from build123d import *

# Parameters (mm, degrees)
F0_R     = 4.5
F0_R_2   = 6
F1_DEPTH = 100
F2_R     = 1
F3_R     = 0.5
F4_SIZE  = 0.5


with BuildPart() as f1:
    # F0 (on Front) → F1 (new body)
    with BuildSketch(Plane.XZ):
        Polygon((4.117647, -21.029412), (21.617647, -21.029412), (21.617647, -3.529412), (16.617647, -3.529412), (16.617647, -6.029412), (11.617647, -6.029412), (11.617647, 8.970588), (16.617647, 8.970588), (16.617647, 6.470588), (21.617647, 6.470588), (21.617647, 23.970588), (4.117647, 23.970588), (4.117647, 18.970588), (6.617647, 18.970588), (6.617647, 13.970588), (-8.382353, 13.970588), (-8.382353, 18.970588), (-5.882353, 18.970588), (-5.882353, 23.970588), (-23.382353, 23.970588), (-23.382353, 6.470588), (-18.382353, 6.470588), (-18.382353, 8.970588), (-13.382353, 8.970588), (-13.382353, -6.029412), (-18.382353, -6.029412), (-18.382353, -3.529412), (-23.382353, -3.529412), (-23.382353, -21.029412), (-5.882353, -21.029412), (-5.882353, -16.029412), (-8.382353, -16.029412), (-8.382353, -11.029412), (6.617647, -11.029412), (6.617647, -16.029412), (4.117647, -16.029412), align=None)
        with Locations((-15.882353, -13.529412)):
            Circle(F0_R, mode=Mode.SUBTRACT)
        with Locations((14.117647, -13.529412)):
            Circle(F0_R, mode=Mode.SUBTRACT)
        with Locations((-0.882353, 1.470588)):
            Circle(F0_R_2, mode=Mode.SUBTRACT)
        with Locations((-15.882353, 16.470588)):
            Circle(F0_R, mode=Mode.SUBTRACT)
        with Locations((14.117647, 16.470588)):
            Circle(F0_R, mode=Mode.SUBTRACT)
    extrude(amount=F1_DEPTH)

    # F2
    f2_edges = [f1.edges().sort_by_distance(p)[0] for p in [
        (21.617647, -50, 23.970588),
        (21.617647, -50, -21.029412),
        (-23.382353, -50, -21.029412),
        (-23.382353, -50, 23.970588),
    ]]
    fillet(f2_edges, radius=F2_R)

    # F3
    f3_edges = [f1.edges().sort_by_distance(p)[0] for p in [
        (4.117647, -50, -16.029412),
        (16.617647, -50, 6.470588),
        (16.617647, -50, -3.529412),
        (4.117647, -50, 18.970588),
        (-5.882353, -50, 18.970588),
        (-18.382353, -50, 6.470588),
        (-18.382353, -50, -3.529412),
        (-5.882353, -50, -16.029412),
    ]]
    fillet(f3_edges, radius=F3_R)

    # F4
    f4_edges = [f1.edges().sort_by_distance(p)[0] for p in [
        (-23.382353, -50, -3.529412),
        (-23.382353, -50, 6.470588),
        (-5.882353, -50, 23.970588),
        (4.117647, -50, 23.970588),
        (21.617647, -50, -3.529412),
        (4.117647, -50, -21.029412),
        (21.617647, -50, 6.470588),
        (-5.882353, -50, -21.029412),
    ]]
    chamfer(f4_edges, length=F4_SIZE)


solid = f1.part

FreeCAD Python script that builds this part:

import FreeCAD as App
import Part
import Sketcher
from FreeCAD import Vector


def edges_at(feature, points):
    """Names of the edges that pass closest to the given points."""
    edges = feature.Shape.Edges
    near = lambda p: min(range(len(edges)), key=lambda i: edges[i].distToShape(Part.Vertex(*p))[0])
    return sorted({f"Edge{near(p) + 1}" for p in points})

doc = App.newDocument("Part")
params = doc.addObject("Spreadsheet::Sheet", "Params")
for row, (alias, value) in enumerate([
    ("sketch1_diameter", "9 mm"),
    ("sketch1_diameter2", "12 mm"),
    ("sketch1_width", "5 mm"),
    ("sketch1_width2", "15 mm"),
    ("sketch1_width3", "17.5 mm"),
    ("pad1_length", "100 mm"),
    ("fillet_radius", "1 mm"),
    ("fillet2_radius", "0.5 mm"),
    ("chamfer_size", "0.5 mm"),
], start=1):
    params.set(f"A{row}", alias)
    params.set(f"B{row}", "=" + value)
    params.setAlias(f"B{row}", alias)

body = doc.addObject("PartDesign::Body", "Body")

# Sketch on XZ plane
sketch1 = body.newObject("Sketcher::SketchObject", "Sketch")
sketch1.AttachmentSupport = (doc.getObject("XZ_Plane"), [""])
sketch1.MapMode = "FlatFace"
sketch1.addGeometry([
    Part.LineSegment(Vector(4.117647, -21.029412, 0), Vector(21.617647, -21.029412, 0)),  # 0
    Part.LineSegment(Vector(21.617647, -21.029412, 0), Vector(21.617647, -3.529412, 0)),  # 1
    Part.LineSegment(Vector(21.617647, -3.529412, 0), Vector(16.617647, -3.529412, 0)),  # 2
    Part.LineSegment(Vector(16.617647, -3.529412, 0), Vector(16.617647, -6.029412, 0)),  # 3
    Part.LineSegment(Vector(16.617647, -6.029412, 0), Vector(11.617647, -6.029412, 0)),  # 4
    Part.LineSegment(Vector(11.617647, -6.029412, 0), Vector(11.617647, 8.970588, 0)),  # 5
    Part.LineSegment(Vector(11.617647, 8.970588, 0), Vector(16.617647, 8.970588, 0)),  # 6
    Part.LineSegment(Vector(16.617647, 8.970588, 0), Vector(16.617647, 6.470588, 0)),  # 7
    Part.LineSegment(Vector(16.617647, 6.470588, 0), Vector(21.617647, 6.470588, 0)),  # 8
    Part.LineSegment(Vector(21.617647, 6.470588, 0), Vector(21.617647, 23.970588, 0)),  # 9
    Part.LineSegment(Vector(21.617647, 23.970588, 0), Vector(4.117647, 23.970588, 0)),  # 10
    Part.LineSegment(Vector(4.117647, 23.970588, 0), Vector(4.117647, 18.970588, 0)),  # 11
    Part.LineSegment(Vector(4.117647, 18.970588, 0), Vector(6.617647, 18.970588, 0)),  # 12
    Part.LineSegment(Vector(6.617647, 18.970588, 0), Vector(6.617647, 13.970588, 0)),  # 13
    Part.LineSegment(Vector(6.617647, 13.970588, 0), Vector(-8.382353, 13.970588, 0)),  # 14
    Part.LineSegment(Vector(-8.382353, 13.970588, 0), Vector(-8.382353, 18.970588, 0)),  # 15
    Part.LineSegment(Vector(-8.382353, 18.970588, 0), Vector(-5.882353, 18.970588, 0)),  # 16
    Part.LineSegment(Vector(-5.882353, 18.970588, 0), Vector(-5.882353, 23.970588, 0)),  # 17
    Part.LineSegment(Vector(-5.882353, 23.970588, 0), Vector(-23.382353, 23.970588, 0)),  # 18
    Part.LineSegment(Vector(-23.382353, 23.970588, 0), Vector(-23.382353, 6.470588, 0)),  # 19
    Part.LineSegment(Vector(-23.382353, 6.470588, 0), Vector(-18.382353, 6.470588, 0)),  # 20
    Part.LineSegment(Vector(-18.382353, 6.470588, 0), Vector(-18.382353, 8.970588, 0)),  # 21
    Part.LineSegment(Vector(-18.382353, 8.970588, 0), Vector(-13.382353, 8.970588, 0)),  # 22
    Part.LineSegment(Vector(-13.382353, 8.970588, 0), Vector(-13.382353, -6.029412, 0)),  # 23
    Part.LineSegment(Vector(-13.382353, -6.029412, 0), Vector(-18.382353, -6.029412, 0)),  # 24
    Part.LineSegment(Vector(-18.382353, -6.029412, 0), Vector(-18.382353, -3.529412, 0)),  # 25
    Part.LineSegment(Vector(-18.382353, -3.529412, 0), Vector(-23.382353, -3.529412, 0)),  # 26
    Part.LineSegment(Vector(-23.382353, -3.529412, 0), Vector(-23.382353, -21.029412, 0)),  # 27
    Part.LineSegment(Vector(-23.382353, -21.029412, 0), Vector(-5.882353, -21.029412, 0)),  # 28
    Part.LineSegment(Vector(-5.882353, -21.029412, 0), Vector(-5.882353, -16.029412, 0)),  # 29
    Part.LineSegment(Vector(-5.882353, -16.029412, 0), Vector(-8.382353, -16.029412, 0)),  # 30
    Part.LineSegment(Vector(-8.382353, -16.029412, 0), Vector(-8.382353, -11.029412, 0)),  # 31
    Part.LineSegment(Vector(-8.382353, -11.029412, 0), Vector(6.617647, -11.029412, 0)),  # 32
    Part.LineSegment(Vector(6.617647, -11.029412, 0), Vector(6.617647, -16.029412, 0)),  # 33
    Part.LineSegment(Vector(6.617647, -16.029412, 0), Vector(4.117647, -16.029412, 0)),  # 34
    Part.LineSegment(Vector(4.117647, -16.029412, 0), Vector(4.117647, -21.029412, 0)),  # 35
    Part.Circle(Vector(-15.882353, -13.529412, 0), Vector(0, 0, 1), 4.5),  # 36
    Part.Circle(Vector(14.117647, -13.529412, 0), Vector(0, 0, 1), 4.5),  # 37
    Part.Circle(Vector(-15.882353, 16.470588, 0), Vector(0, 0, 1), 4.5),  # 38
    Part.Circle(Vector(-0.882353, 1.470588, 0), Vector(0, 0, 1), 6),  # 39
    Part.Circle(Vector(14.117647, 16.470588, 0), Vector(0, 0, 1), 4.5),  # 40
], False)
sketch1.addConstraint([
    Sketcher.Constraint("Coincident", 0, 2, 1, 1),
    Sketcher.Constraint("Coincident", 1, 2, 2, 1),
    Sketcher.Constraint("Coincident", 2, 2, 3, 1),
    Sketcher.Constraint("Coincident", 3, 2, 4, 1),
    Sketcher.Constraint("Coincident", 4, 2, 5, 1),
    Sketcher.Constraint("Coincident", 5, 2, 6, 1),
    Sketcher.Constraint("Coincident", 6, 2, 7, 1),
    Sketcher.Constraint("Coincident", 7, 2, 8, 1),
    Sketcher.Constraint("Coincident", 8, 2, 9, 1),
    Sketcher.Constraint("Coincident", 9, 2, 10, 1),
    Sketcher.Constraint("Coincident", 10, 2, 11, 1),
    Sketcher.Constraint("Coincident", 11, 2, 12, 1),
    Sketcher.Constraint("Coincident", 12, 2, 13, 1),
    Sketcher.Constraint("Coincident", 13, 2, 14, 1),
    Sketcher.Constraint("Coincident", 14, 2, 15, 1),
    Sketcher.Constraint("Coincident", 15, 2, 16, 1),
    Sketcher.Constraint("Coincident", 16, 2, 17, 1),
    Sketcher.Constraint("Coincident", 17, 2, 18, 1),
    Sketcher.Constraint("Coincident", 18, 2, 19, 1),
    Sketcher.Constraint("Coincident", 19, 2, 20, 1),
    Sketcher.Constraint("Coincident", 20, 2, 21, 1),
    Sketcher.Constraint("Coincident", 21, 2, 22, 1),
    Sketcher.Constraint("Coincident", 22, 2, 23, 1),
    Sketcher.Constraint("Coincident", 23, 2, 24, 1),
    Sketcher.Constraint("Coincident", 24, 2, 25, 1),
    Sketcher.Constraint("Coincident", 25, 2, 26, 1),
    Sketcher.Constraint("Coincident", 26, 2, 27, 1),
    Sketcher.Constraint("Coincident", 27, 2, 28, 1),
    Sketcher.Constraint("Coincident", 28, 2, 29, 1),
    Sketcher.Constraint("Coincident", 29, 2, 30, 1),
    Sketcher.Constraint("Coincident", 30, 2, 31, 1),
    Sketcher.Constraint("Coincident", 31, 2, 32, 1),
    Sketcher.Constraint("Coincident", 32, 2, 33, 1),
    Sketcher.Constraint("Coincident", 33, 2, 34, 1),
    Sketcher.Constraint("Coincident", 34, 2, 35, 1),
    Sketcher.Constraint("Coincident", 35, 2, 0, 1),
    Sketcher.Constraint("Horizontal", 0),
    Sketcher.Constraint("Vertical", 1),
    Sketcher.Constraint("Horizontal", 2),
    Sketcher.Constraint("Vertical", 3),
    Sketcher.Constraint("Horizontal", 4),
    Sketcher.Constraint("Vertical", 5),
    Sketcher.Constraint("Horizontal", 6),
    Sketcher.Constraint("Vertical", 7),
    Sketcher.Constraint("Horizontal", 8),
    Sketcher.Constraint("Vertical", 9),
    Sketcher.Constraint("Horizontal", 10),
    Sketcher.Constraint("Vertical", 11),
    Sketcher.Constraint("Horizontal", 12),
    Sketcher.Constraint("Vertical", 13),
    Sketcher.Constraint("Horizontal", 14),
    Sketcher.Constraint("Vertical", 15),
    Sketcher.Constraint("Horizontal", 16),
    Sketcher.Constraint("Vertical", 17),
    Sketcher.Constraint("Horizontal", 18),
    Sketcher.Constraint("Vertical", 19),
    Sketcher.Constraint("Horizontal", 20),
    Sketcher.Constraint("Vertical", 21),
    Sketcher.Constraint("Horizontal", 22),
    Sketcher.Constraint("Vertical", 23),
    Sketcher.Constraint("Horizontal", 24),
    Sketcher.Constraint("Vertical", 25),
    Sketcher.Constraint("Horizontal", 26),
    Sketcher.Constraint("Vertical", 27),
    Sketcher.Constraint("Horizontal", 28),
    Sketcher.Constraint("Vertical", 29),
    Sketcher.Constraint("Horizontal", 30),
    Sketcher.Constraint("Vertical", 31),
    Sketcher.Constraint("Horizontal", 32),
    Sketcher.Constraint("Vertical", 33),
    Sketcher.Constraint("Horizontal", 34),
    Sketcher.Constraint("Vertical", 35),
    Sketcher.Constraint("Equal", 36, 37),
    Sketcher.Constraint("Equal", 37, 38),
    Sketcher.Constraint("Equal", 38, 40),
    Sketcher.Constraint("Horizontal", 36, 3, 37, 3),
    Sketcher.Constraint("Horizontal", 38, 3, 40, 3),
    Sketcher.Constraint("Horizontal", 12, 2, 15, 2),
    Sketcher.Constraint("Horizontal", 10, 2, 17, 2),
    Sketcher.Constraint("Horizontal", 8, 2, 19, 2),
    Sketcher.Constraint("Horizontal", 6, 2, 21, 2),
    Sketcher.Constraint("Horizontal", 4, 2, 23, 2),
    Sketcher.Constraint("Horizontal", 2, 2, 25, 2),
    Sketcher.Constraint("Horizontal", 0, 2, 27, 2),
    Sketcher.Constraint("Horizontal", 30, 2, 33, 2),
    Sketcher.Constraint("Vertical", 36, 3, 38, 3),
    Sketcher.Constraint("Vertical", 37, 3, 40, 3),
    Sketcher.Constraint("Vertical", 3, 2, 6, 2),
    Sketcher.Constraint("Vertical", 1, 2, 8, 2),
    Sketcher.Constraint("Vertical", 21, 2, 24, 2),
    Sketcher.Constraint("Vertical", 19, 2, 26, 2),
    Sketcher.Constraint("Vertical", 17, 2, 28, 2),
    Sketcher.Constraint("Vertical", 15, 2, 30, 2),
    Sketcher.Constraint("Vertical", 13, 2, 32, 2),
    Sketcher.Constraint("Vertical", 11, 2, 34, 2),
    Sketcher.Constraint("Equal", 2, 4),
    Sketcher.Constraint("Equal", 12, 16),
    Sketcher.Constraint("Equal", 10, 18),
    Sketcher.Constraint("Equal", 8, 20),
    Sketcher.Constraint("Equal", 20, 22),
    Sketcher.Constraint("Equal", 28, 1),
    Sketcher.Constraint("Equal", 34, 3),
    Sketcher.Constraint("Equal", 32, 5),
    Sketcher.Constraint("Equal", 3, 7),
    Sketcher.Constraint("Equal", 1, 9),
    Sketcher.Constraint("Equal", 26, 11),
    Sketcher.Constraint("Equal", 11, 13),
    Sketcher.Constraint("Equal", 17, 29),
    Sketcher.Constraint("Equal", 29, 31),
    Sketcher.Constraint("Diameter", 36, 9.0),
    Sketcher.Constraint("Diameter", 39, 12.0),
    Sketcher.Constraint("DistanceX", 2, 2, 2, 1, 5.0),
    Sketcher.Constraint("DistanceX", 14, 2, 14, 1, 15.0),
    Sketcher.Constraint("DistanceX", 0, 1, 0, 2, 17.5),
    Sketcher.Constraint("DistanceX", 12, 1, 12, 2, 2.5),
    Sketcher.Constraint("DistanceX", 36, 3, 37, 3, 30.0),
    Sketcher.Constraint("DistanceY", 36, 3, 38, 3, 30.0),
    Sketcher.Constraint("DistanceX", 36, 3, 39, 3, 15.0),
    Sketcher.Constraint("DistanceY", 36, 3, 39, 3, 15.0),
    Sketcher.Constraint("DistanceY", 37, 3, 1, 2, 10.0),
    Sketcher.Constraint("DistanceX", 10, 2, 40, 3, 10.0),
    Sketcher.Constraint("DistanceY", 3, 2, -1, 1, 6.029412),
    Sketcher.Constraint("DistanceX", 36, 3, -1, 1, 15.882353),
])
sketch1.setExpression("Constraints[109]", "Params.sketch1_diameter")
sketch1.setExpression("Constraints[110]", "Params.sketch1_diameter2")
sketch1.setExpression("Constraints[111]", "Params.sketch1_width")
sketch1.setExpression("Constraints[112]", "Params.sketch1_width2")
sketch1.setExpression("Constraints[113]", "Params.sketch1_width3")
pad1 = body.newObject("PartDesign::Pad", "Pad")
pad1.Profile = sketch1
pad1.setExpression("Length", "Params.pad1_length")
doc.recompute()

fillet = body.newObject("PartDesign::Fillet", "Fillet")
fillet.Base = (pad1, edges_at(pad1, [
    (21.618, -50, 23.971),
    (21.618, -50, -21.029),
    (-23.382, -50, -21.029),
    (-23.382, -50, 23.971),
]))
fillet.setExpression("Radius", "Params.fillet_radius")
doc.recompute()

fillet2 = body.newObject("PartDesign::Fillet", "Fillet001")
fillet2.Base = (fillet, edges_at(fillet, [
    (4.118, -50, -16.029),
    (16.618, -50, 6.471),
    (16.618, -50, -3.529),
    (4.118, -50, 18.971),
    (-5.882, -50, 18.971),
    (-18.382, -50, 6.471),
    (-18.382, -50, -3.529),
    (-5.882, -50, -16.029),
]))
fillet2.setExpression("Radius", "Params.fillet2_radius")
doc.recompute()

chamfer = body.newObject("PartDesign::Chamfer", "Chamfer")
chamfer.Base = (fillet2, edges_at(fillet2, [
    (-23.382, -50, -3.529),
    (-23.382, -50, 6.471),
    (-5.882, -50, 23.971),
    (4.118, -50, 23.971),
    (21.618, -50, -3.529),
    (4.118, -50, -21.029),
    (21.618, -50, 6.471),
    (-5.882, -50, -21.029),
]))
chamfer.setExpression("Size", "Params.chamfer_size")

doc.recompute()
